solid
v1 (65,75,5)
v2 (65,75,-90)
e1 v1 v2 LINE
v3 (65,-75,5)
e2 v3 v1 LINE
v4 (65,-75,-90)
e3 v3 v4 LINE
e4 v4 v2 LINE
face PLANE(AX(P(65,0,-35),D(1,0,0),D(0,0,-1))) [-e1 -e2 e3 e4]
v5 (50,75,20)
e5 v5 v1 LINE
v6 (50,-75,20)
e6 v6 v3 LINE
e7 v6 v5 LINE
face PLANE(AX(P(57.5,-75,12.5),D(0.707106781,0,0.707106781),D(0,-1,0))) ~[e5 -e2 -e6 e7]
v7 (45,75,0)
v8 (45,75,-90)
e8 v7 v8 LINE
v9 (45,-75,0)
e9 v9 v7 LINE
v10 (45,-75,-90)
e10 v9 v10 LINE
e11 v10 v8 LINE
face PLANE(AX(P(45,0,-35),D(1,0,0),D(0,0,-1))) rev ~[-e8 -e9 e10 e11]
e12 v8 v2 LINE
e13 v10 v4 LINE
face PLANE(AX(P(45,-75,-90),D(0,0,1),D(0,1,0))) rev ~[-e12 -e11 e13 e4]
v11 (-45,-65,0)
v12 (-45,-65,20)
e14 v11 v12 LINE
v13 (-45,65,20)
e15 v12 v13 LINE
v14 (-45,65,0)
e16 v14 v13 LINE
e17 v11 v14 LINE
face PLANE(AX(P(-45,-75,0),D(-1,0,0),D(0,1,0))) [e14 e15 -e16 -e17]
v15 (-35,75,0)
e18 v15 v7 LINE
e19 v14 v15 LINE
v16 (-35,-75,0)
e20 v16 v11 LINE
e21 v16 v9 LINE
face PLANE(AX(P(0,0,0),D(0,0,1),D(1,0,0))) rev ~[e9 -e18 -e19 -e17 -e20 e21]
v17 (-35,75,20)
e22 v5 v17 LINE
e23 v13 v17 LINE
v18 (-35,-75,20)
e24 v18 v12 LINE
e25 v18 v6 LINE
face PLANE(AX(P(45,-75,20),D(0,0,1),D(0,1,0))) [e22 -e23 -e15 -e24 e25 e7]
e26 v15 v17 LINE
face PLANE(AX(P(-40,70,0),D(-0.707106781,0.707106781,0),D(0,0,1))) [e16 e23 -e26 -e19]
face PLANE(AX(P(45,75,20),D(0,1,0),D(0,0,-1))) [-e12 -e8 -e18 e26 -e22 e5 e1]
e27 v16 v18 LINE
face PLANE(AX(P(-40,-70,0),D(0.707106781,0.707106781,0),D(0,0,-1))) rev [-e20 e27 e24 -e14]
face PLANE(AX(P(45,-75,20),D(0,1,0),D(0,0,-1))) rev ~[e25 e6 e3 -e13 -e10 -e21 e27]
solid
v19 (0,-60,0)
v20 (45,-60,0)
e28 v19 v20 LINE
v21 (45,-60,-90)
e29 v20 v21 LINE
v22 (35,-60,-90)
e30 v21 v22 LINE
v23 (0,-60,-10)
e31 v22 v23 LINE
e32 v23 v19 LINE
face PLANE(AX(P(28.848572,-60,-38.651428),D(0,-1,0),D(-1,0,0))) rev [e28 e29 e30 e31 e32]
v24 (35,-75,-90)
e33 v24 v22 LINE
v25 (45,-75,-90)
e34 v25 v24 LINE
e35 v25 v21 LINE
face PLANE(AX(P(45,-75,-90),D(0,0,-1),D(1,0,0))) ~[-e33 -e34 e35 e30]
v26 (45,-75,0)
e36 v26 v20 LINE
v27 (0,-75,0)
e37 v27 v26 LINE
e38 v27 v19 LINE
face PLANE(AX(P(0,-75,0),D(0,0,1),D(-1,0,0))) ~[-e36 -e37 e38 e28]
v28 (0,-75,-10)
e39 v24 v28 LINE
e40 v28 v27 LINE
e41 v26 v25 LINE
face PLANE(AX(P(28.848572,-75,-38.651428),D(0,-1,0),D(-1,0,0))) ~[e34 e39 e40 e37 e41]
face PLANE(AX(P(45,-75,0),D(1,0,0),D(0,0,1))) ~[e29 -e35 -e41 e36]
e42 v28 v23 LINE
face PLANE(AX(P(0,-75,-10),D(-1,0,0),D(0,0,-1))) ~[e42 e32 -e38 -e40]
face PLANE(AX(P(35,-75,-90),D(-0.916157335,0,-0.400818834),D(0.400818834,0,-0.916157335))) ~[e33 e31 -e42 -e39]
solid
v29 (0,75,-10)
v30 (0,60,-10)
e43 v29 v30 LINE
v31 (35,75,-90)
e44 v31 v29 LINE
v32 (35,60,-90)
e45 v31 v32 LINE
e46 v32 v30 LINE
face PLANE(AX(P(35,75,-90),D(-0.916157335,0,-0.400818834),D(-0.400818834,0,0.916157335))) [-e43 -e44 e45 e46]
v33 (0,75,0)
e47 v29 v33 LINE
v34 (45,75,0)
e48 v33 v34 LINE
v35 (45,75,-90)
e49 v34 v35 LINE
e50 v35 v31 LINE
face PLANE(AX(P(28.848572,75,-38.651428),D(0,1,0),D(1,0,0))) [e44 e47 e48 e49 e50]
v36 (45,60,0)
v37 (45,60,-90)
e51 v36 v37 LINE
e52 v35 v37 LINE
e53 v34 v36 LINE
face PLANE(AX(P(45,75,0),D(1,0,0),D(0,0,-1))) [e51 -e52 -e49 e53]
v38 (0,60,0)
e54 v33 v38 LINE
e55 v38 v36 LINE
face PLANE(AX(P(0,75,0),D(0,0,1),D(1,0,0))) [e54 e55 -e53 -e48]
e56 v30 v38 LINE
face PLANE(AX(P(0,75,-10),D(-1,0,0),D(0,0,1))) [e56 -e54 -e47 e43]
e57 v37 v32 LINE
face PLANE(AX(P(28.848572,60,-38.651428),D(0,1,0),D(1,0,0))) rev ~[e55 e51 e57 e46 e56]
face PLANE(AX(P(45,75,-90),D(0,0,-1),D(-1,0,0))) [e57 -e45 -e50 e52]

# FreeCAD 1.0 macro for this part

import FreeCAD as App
import Part
import Sketcher

V = App.Vector


def edges_at(feature, points):
    """Names of the edges that pass closest to the given points."""
    edges = feature.Shape.Edges
    near = lambda p: min(range(len(edges)), key=lambda i: edges[i].distToShape(Part.Vertex(*p))[0])
    return sorted({f"Edge{near(p) + 1}" for p in points})

doc = App.newDocument("Part")
body = doc.addObject("PartDesign::Body", "Body")

# Sketch on XY plane
sketch1 = doc.addObject("Sketcher::SketchObject", "Sketch")
body.addObject(sketch1)
sketch1.AttachmentSupport = (doc.XY_Plane, [""])
sketch1.MapMode = "FlatFace"
sketch1.addGeometry([
    Part.LineSegment(V(-45, 75, 0), V(-45, -75, 0)),
    Part.LineSegment(V(-45, -75, 0), V(45, -75, 0)),
    Part.LineSegment(V(45, -75, 0), V(45, 75, 0)),
    Part.LineSegment(V(45, 75, 0), V(-45, 75, 0)),
], False)
sketch1.addConstraint([
    Sketcher.Constraint("Coincident", 0, 2, 1, 1),
    Sketcher.Constraint("Coincident", 1, 2, 2, 1),
    Sketcher.Constraint("Coincident", 2, 2, 3, 1),
    Sketcher.Constraint("Coincident", 3, 2, 0, 1),
    Sketcher.Constraint("Vertical", 0),
    Sketcher.Constraint("Horizontal", 1),
    Sketcher.Constraint("Vertical", 2),
    Sketcher.Constraint("Horizontal", 3),
    Sketcher.Constraint("Symmetric", 0, 2, 2, 2, -1, 1),
    Sketcher.Constraint("DistanceX", 1, 1, 1, 2, 90.0),
    Sketcher.Constraint("DistanceY", 0, 2, 0, 1, 150.0),
])
pad1 = doc.addObject("PartDesign::Pad", "Pad")
body.addObject(pad1)
pad1.Profile = sketch1
pad1.Length = 20

# Sketch on YZ plane
sketch2 = doc.addObject("Sketcher::SketchObject", "Sketch001")
body.addObject(sketch2)
sketch2.AttachmentSupport = (doc.YZ_Plane, [""])
sketch2.MapMode = "FlatFace"
sketch2.AttachmentOffset = App.Placement(V(0, 0, 45), App.Rotation())
sketch2.addGeometry([
    Part.LineSegment(V(75, 20, 0), V(-75, 20, 0)),
    Part.LineSegment(V(-75, 20, 0), V(-75, -90, 0)),
    Part.LineSegment(V(-75, -90, 0), V(75, -90, 0)),
    Part.LineSegment(V(75, -90, 0), V(75, 20, 0)),
], False)
sketch2.addConstraint([
    Sketcher.Constraint("Coincident", 0, 2, 1, 1),
    Sketcher.Constraint("Coincident", 1, 2, 2, 1),
    Sketcher.Constraint("Coincident", 2, 2, 3, 1),
    Sketcher.Constraint("Coincident", 3, 2, 0, 1),
    Sketcher.Constraint("Horizontal", 0),
    Sketcher.Constraint("Vertical", 1),
    Sketcher.Constraint("Horizontal", 2),
    Sketcher.Constraint("Vertical", 3),
    Sketcher.Constraint("DistanceX", 0, 2, 0, 1, 150.0),
    Sketcher.Constraint("DistanceY", 1, 2, 1, 1, 110.0),
    Sketcher.Constraint("DistanceX", 0, 2, -1, 1, 75.0),
    Sketcher.Constraint("DistanceY", -1, 1, 0, 2, 20.0),
])
pad2 = doc.addObject("PartDesign::Pad", "Pad001")
body.addObject(pad2)
pad2.Profile = sketch2
pad2.Length = 20
doc.recompute()

chamfer = doc.addObject("PartDesign::Chamfer", "Chamfer")
body.addObject(chamfer)
chamfer.Base = (pad2, edges_at(pad2, [(-45, -75, 10), (-45, 75, 10)]))
chamfer.Size = 10
doc.recompute()

chamfer2 = doc.addObject("PartDesign::Chamfer", "Chamfer001")
body.addObject(chamfer2)
chamfer2.Base = (chamfer, edges_at(chamfer, [(65, 0, 20)]))
chamfer2.Size = 15
body2 = doc.addObject("PartDesign::Body", "Body001")

# Sketch on XZ plane
sketch3 = doc.addObject("Sketcher::SketchObject", "Sketch002")
body2.addObject(sketch3)
sketch3.AttachmentSupport = (doc.getObject("XZ_Plane001"), [""])
sketch3.MapMode = "FlatFace"
sketch3.AttachmentOffset = App.Placement(V(0, 0, -75), App.Rotation())
sketch3.addGeometry([
    Part.LineSegment(V(45, -90, 0), V(35, -90, 0)),  # 0
    Part.LineSegment(V(35, -90, 0), V(0, -10, 0)),  # 1
    Part.LineSegment(V(0, -10, 0), V(0, 0, 0)),  # 2
    Part.LineSegment(V(0, 0, 0), V(45, 0, 0)),  # 3
    Part.LineSegment(V(45, 0, 0), V(45, -90, 0)),  # 4
], False)
sketch3.addConstraint([
    Sketcher.Constraint("Coincident", 0, 2, 1, 1),
    Sketcher.Constraint("Coincident", 1, 2, 2, 1),
    Sketcher.Constraint("Coincident", 2, 2, 3, 1),
    Sketcher.Constraint("Coincident", 3, 2, 4, 1),
    Sketcher.Constraint("Coincident", 4, 2, 0, 1),
    Sketcher.Constraint("Horizontal", 0),
    Sketcher.Constraint("Vertical", 2),
    Sketcher.Constraint("Horizontal", 3),
    Sketcher.Constraint("Vertical", 4),
    Sketcher.Constraint("Coincident", 2, 2, -1, 1),
    Sketcher.Constraint("Equal", 0, 2),
    Sketcher.Constraint("DistanceX", 0, 2, 0, 1, 10.0),
    Sketcher.Constraint("DistanceX", 3, 1, 3, 2, 45.0),
    Sketcher.Constraint("DistanceY", 4, 2, 4, 1, 90.0),
])
pad3 = doc.addObject("PartDesign::Pad", "Pad002")
body2.addObject(pad3)
pad3.Profile = sketch3
pad3.Length = 15
body3 = doc.addObject("PartDesign::Body", "Body002")
doc.recompute()

mirroring = doc.addObject("Part::Mirroring", "Mirroring")
mirroring.Source = body2
mirroring.Base = V(0, 0, 0)
mirroring.Normal = V(0, 1, 0)
body3.BaseFeature = mirroring
doc.recompute()
mirroring.Visibility = False

doc.recompute()
